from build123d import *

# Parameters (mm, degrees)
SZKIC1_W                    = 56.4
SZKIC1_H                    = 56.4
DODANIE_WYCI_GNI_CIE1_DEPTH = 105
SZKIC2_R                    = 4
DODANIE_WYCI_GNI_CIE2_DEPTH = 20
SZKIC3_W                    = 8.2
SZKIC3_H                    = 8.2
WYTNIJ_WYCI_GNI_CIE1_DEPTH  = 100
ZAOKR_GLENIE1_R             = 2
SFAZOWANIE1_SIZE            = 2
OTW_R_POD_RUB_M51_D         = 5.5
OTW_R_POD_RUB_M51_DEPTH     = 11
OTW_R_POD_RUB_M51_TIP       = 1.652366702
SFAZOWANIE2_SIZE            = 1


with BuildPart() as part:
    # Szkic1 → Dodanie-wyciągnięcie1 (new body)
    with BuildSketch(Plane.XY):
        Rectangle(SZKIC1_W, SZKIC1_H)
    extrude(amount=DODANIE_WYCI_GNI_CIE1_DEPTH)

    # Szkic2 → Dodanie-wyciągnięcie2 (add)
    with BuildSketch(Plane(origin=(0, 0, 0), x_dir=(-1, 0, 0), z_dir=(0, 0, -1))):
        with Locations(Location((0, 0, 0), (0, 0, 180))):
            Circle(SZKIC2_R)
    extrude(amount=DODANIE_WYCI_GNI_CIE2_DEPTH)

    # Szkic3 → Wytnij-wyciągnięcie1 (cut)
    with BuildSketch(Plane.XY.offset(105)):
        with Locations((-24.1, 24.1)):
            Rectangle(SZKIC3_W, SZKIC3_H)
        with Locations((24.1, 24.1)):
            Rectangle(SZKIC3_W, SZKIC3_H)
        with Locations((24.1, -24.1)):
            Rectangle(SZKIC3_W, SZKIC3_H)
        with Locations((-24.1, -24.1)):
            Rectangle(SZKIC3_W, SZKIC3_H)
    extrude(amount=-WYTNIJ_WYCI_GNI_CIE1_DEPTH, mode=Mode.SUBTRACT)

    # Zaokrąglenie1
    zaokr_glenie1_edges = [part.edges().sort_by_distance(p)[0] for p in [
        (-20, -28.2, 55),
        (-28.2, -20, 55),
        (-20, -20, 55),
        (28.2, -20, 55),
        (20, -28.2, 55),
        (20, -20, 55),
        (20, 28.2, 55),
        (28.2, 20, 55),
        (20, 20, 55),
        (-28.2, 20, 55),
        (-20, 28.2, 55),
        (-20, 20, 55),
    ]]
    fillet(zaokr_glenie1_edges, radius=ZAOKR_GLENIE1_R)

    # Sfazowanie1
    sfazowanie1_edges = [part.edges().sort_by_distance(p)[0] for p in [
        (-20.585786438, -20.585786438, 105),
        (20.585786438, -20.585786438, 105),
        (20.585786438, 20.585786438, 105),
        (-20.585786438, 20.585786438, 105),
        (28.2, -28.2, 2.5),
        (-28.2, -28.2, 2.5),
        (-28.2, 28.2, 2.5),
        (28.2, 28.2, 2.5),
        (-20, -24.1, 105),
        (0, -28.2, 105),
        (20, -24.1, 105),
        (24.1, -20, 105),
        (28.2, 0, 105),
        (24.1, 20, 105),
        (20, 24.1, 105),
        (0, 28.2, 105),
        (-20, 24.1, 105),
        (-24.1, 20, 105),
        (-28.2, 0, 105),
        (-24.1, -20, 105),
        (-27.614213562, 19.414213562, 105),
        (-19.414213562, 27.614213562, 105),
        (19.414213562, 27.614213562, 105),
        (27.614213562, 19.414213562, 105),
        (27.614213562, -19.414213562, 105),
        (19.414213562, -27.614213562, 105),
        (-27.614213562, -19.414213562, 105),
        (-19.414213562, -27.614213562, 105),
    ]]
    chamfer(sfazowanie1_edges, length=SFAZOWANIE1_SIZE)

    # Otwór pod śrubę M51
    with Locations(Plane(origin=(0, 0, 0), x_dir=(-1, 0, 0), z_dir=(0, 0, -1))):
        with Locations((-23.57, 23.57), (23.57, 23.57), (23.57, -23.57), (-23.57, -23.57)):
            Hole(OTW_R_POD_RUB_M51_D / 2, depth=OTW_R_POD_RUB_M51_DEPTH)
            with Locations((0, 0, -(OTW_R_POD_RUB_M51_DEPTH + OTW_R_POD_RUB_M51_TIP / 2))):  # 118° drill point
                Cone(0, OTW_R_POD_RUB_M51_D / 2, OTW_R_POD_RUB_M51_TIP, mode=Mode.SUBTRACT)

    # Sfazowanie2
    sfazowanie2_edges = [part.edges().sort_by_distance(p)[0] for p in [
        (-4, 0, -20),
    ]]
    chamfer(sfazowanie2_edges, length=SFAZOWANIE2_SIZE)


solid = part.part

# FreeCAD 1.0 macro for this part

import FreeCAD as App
import Part
import Sketcher

V = App.Vector
Q = App.Units.Quantity


def edges_at(feature, points):
    """Names of the edges that pass closest to the given points."""
    edges = feature.Shape.Edges
    near = lambda p: min(range(len(edges)), key=lambda i: edges[i].distToShape(Part.Vertex(*p))[0])
    return sorted({f"Edge{near(p) + 1}" for p in points})


def add_polygon(sketch, points):
    """Adds a closed chain of lines whose ends are joined by coincident constraints."""
    first, n = sketch.GeometryCount, len(points)
    for a, b in zip(points, points[1:] + points[:1]):
        sketch.addGeometry(Part.LineSegment(App.Vector(*a, 0), App.Vector(*b, 0)), False)
    for i in range(n):
        sketch.addConstraint(Sketcher.Constraint("Coincident", first + i, 2, first + (i + 1) % n, 1))

doc = App.newDocument("Part")
body = doc.addObject("PartDesign::Body", "Body")

sketch1 = doc.addObject("Sketcher::SketchObject", "Sketch")
body.addObject(sketch1)
sketch1.AttachmentSupport = (doc.XY_Plane, [""])
sketch1.MapMode = "FlatFace"
add_polygon(sketch1, [(-28.2, 28.2), (-28.2, -28.2), (28.2, -28.2), (28.2, 28.2)])
sketch1.addConstraint([
    Sketcher.Constraint("Vertical", 0),
    Sketcher.Constraint("Horizontal", 1),
    Sketcher.Constraint("Vertical", 2),
    Sketcher.Constraint("Horizontal", 3),
    Sketcher.Constraint("Symmetric", 0, 2, 2, 2, -1, 1),
    Sketcher.Constraint("Equal", 3, 0),
    Sketcher.Constraint("DistanceX", 1, 1, 1, 2, Q("56.4 mm")),
])
pad1 = doc.addObject("PartDesign::Pad", "Pad")
body.addObject(pad1)
pad1.Profile = sketch1
pad1.Length = 105

sketch2 = doc.addObject("Sketcher::SketchObject", "Sketch001")
body.addObject(sketch2)
sketch2.AttachmentSupport = (doc.XY_Plane, [""])
sketch2.MapMode = "FlatFace"
sketch2.addGeometry(Part.Circle(V(0, 0, 0), V(0, 0, 1), 4), False)
sketch2.addConstraint([
    Sketcher.Constraint("Coincident", 0, 3, -1, 1),
    Sketcher.Constraint("Diameter", 0, Q("8 mm")),
])
pad2 = doc.addObject("PartDesign::Pad", "Pad001")
body.addObject(pad2)
pad2.Profile = sketch2
pad2.Length = 20
pad2.Reversed = True

sketch3 = doc.addObject("Sketcher::SketchObject", "Sketch002")
body.addObject(sketch3)
sketch3.AttachmentSupport = (doc.XY_Plane, [""])
sketch3.MapMode = "FlatFace"
sketch3.AttachmentOffset = App.Placement(V(0, 0, 105), App.Rotation())
add_polygon(sketch3, [(-28.2, 28.2), (-28.2, 20), (-20, 20), (-20, 28.2)])
add_polygon(sketch3, [(20, 28.2), (20, 20), (28.2, 20), (28.2, 28.2)])
add_polygon(sketch3, [(20, -20), (20, -28.2), (28.2, -28.2), (28.2, -20)])
add_polygon(sketch3, [(-28.2, -20), (-28.2, -28.2), (-20, -28.2), (-20, -20)])
sketch3.addConstraint([
    Sketcher.Constraint("Vertical", 0),
    Sketcher.Constraint("Horizontal", 1),
    Sketcher.Constraint("Vertical", 2),
    Sketcher.Constraint("Horizontal", 3),
    Sketcher.Constraint("Vertical", 4),
    Sketcher.Constraint("Horizontal", 5),
    Sketcher.Constraint("Vertical", 6),
    Sketcher.Constraint("Horizontal", 7),
    Sketcher.Constraint("Vertical", 8),
    Sketcher.Constraint("Horizontal", 9),
    Sketcher.Constraint("Vertical", 10),
    Sketcher.Constraint("Horizontal", 11),
    Sketcher.Constraint("Vertical", 12),
    Sketcher.Constraint("Horizontal", 13),
    Sketcher.Constraint("Vertical", 14),
    Sketcher.Constraint("Horizontal", 15),
    Sketcher.Constraint("Symmetric", 2, 2, 8, 2, -1, 1),
    Sketcher.Constraint("Symmetric", 0, 2, 10, 2, -1, 1),
    Sketcher.Constraint("Symmetric", 6, 2, 12, 2, -1, 1),
    Sketcher.Constraint("Symmetric", 4, 2, 14, 2, -1, 1),
    Sketcher.Constraint("Symmetric", 1, 2, 4, 2, -2),
    Sketcher.Constraint("Symmetric", 3, 2, 6, 2, -2),
    Sketcher.Constraint("Equal", 15, 0),
    Sketcher.Constraint("DistanceX", 1, 1, 1, 2, Q("8.2 mm")),
    Sketcher.Constraint("DistanceY", -1, 1, 0, 2, Q("20 mm")),
    Sketcher.Constraint("DistanceX", 1, 2, -1, 1, Q("20 mm")),
])
pocket1 = doc.addObject("PartDesign::Pocket", "Pocket")
body.addObject(pocket1)
pocket1.Profile = sketch3
pocket1.Length = 100
doc.recompute()

fillet = doc.addObject("PartDesign::Fillet", "Fillet")
body.addObject(fillet)
fillet.Base = (pocket1, edges_at(pocket1, [
    (-20, -28.2, 55),
    (-28.2, -20, 55),
    (-20, -20, 55),
    (28.2, -20, 55),
    (20, -28.2, 55),
    (20, -20, 55),
    (20, 28.2, 55),
    (28.2, 20, 55),
    (20, 20, 55),
    (-28.2, 20, 55),
    (-20, 28.2, 55),
    (-20, 20, 55),
]))
fillet.Radius = 2
doc.recompute()

chamfer = doc.addObject("PartDesign::Chamfer", "Chamfer")
body.addObject(chamfer)
chamfer.Base = (fillet, edges_at(fillet, [
    (-20.586, -20.586, 105),
    (20.586, -20.586, 105),
    (20.586, 20.586, 105),
    (-20.586, 20.586, 105),
    (28.2, -28.2, 2.5),
    (-28.2, -28.2, 2.5),
    (-28.2, 28.2, 2.5),
    (28.2, 28.2, 2.5),
    (-20, -24.1, 105),
    (0, -28.2, 105),
    (20, -24.1, 105),
    (24.1, -20, 105),
    (28.2, 0, 105),
    (24.1, 20, 105),
    (20, 24.1, 105),
    (0, 28.2, 105),
    (-20, 24.1, 105),
    (-24.1, 20, 105),
    (-28.2, 0, 105),
    (-24.1, -20, 105),
    (-27.614, 19.414, 105),
    (-19.414, 27.614, 105),
    (19.414, 27.614, 105),
    (27.614, 19.414, 105),
    (27.614, -19.414, 105),
    (19.414, -27.614, 105),
    (-27.614, -19.414, 105),
    (-19.414, -27.614, 105),
]))
chamfer.Size = 2

sketch4 = doc.addObject("Sketcher::SketchObject", "Sketch003")
body.addObject(sketch4)
sketch4.AttachmentSupport = (doc.XY_Plane, [""])
sketch4.MapMode = "FlatFace"
sketch4.addGeometry([
    Part.Circle(V(23.57, 23.57, 0), V(0, 0, 1), 2.75),
    Part.Circle(V(-23.57, 23.57, 0), V(0, 0, 1), 2.75),
    Part.Circle(V(-23.57, -23.57, 0), V(0, 0, 1), 2.75),
    Part.Circle(V(23.57, -23.57, 0), V(0, 0, 1), 2.75),
], False)
sketch4.addConstraint([
    Sketcher.Constraint("Equal", 0, 1),
    Sketcher.Constraint("Equal", 1, 2),
    Sketcher.Constraint("Equal", 2, 3),
    Sketcher.Constraint("Symmetric", 0, 3, 2, 3, -1, 1),
    Sketcher.Constraint("Symmetric", 1, 3, 3, 3, -1, 1),
    Sketcher.Constraint("Symmetric", 0, 3, 1, 3, -2),
    Sketcher.Constraint("Diameter", 0, Q("5.5 mm")),
    Sketcher.Constraint("DistanceX", -1, 1, 0, 3, Q("23.57 mm")),
    Sketcher.Constraint("DistanceY", -1, 1, 0, 3, Q("23.57 mm")),
])
doc.recompute()
hole = doc.addObject("PartDesign::Hole", "Hole")
body.addObject(hole)
hole.Profile = sketch4
hole.ThreadType = "None"
hole.Diameter = 5.5
hole.DepthType = "Dimension"
hole.Depth = 11
hole.DrillPoint = "Angled"
hole.DrillPointAngle = 118
hole.Reversed = True
doc.recompute()

chamfer2 = doc.addObject("PartDesign::Chamfer", "Chamfer001")
body.addObject(chamfer2)
chamfer2.Base = (hole, edges_at(hole, [(-4, 0, -20)]))
chamfer2.Size = 1

doc.recompute()
